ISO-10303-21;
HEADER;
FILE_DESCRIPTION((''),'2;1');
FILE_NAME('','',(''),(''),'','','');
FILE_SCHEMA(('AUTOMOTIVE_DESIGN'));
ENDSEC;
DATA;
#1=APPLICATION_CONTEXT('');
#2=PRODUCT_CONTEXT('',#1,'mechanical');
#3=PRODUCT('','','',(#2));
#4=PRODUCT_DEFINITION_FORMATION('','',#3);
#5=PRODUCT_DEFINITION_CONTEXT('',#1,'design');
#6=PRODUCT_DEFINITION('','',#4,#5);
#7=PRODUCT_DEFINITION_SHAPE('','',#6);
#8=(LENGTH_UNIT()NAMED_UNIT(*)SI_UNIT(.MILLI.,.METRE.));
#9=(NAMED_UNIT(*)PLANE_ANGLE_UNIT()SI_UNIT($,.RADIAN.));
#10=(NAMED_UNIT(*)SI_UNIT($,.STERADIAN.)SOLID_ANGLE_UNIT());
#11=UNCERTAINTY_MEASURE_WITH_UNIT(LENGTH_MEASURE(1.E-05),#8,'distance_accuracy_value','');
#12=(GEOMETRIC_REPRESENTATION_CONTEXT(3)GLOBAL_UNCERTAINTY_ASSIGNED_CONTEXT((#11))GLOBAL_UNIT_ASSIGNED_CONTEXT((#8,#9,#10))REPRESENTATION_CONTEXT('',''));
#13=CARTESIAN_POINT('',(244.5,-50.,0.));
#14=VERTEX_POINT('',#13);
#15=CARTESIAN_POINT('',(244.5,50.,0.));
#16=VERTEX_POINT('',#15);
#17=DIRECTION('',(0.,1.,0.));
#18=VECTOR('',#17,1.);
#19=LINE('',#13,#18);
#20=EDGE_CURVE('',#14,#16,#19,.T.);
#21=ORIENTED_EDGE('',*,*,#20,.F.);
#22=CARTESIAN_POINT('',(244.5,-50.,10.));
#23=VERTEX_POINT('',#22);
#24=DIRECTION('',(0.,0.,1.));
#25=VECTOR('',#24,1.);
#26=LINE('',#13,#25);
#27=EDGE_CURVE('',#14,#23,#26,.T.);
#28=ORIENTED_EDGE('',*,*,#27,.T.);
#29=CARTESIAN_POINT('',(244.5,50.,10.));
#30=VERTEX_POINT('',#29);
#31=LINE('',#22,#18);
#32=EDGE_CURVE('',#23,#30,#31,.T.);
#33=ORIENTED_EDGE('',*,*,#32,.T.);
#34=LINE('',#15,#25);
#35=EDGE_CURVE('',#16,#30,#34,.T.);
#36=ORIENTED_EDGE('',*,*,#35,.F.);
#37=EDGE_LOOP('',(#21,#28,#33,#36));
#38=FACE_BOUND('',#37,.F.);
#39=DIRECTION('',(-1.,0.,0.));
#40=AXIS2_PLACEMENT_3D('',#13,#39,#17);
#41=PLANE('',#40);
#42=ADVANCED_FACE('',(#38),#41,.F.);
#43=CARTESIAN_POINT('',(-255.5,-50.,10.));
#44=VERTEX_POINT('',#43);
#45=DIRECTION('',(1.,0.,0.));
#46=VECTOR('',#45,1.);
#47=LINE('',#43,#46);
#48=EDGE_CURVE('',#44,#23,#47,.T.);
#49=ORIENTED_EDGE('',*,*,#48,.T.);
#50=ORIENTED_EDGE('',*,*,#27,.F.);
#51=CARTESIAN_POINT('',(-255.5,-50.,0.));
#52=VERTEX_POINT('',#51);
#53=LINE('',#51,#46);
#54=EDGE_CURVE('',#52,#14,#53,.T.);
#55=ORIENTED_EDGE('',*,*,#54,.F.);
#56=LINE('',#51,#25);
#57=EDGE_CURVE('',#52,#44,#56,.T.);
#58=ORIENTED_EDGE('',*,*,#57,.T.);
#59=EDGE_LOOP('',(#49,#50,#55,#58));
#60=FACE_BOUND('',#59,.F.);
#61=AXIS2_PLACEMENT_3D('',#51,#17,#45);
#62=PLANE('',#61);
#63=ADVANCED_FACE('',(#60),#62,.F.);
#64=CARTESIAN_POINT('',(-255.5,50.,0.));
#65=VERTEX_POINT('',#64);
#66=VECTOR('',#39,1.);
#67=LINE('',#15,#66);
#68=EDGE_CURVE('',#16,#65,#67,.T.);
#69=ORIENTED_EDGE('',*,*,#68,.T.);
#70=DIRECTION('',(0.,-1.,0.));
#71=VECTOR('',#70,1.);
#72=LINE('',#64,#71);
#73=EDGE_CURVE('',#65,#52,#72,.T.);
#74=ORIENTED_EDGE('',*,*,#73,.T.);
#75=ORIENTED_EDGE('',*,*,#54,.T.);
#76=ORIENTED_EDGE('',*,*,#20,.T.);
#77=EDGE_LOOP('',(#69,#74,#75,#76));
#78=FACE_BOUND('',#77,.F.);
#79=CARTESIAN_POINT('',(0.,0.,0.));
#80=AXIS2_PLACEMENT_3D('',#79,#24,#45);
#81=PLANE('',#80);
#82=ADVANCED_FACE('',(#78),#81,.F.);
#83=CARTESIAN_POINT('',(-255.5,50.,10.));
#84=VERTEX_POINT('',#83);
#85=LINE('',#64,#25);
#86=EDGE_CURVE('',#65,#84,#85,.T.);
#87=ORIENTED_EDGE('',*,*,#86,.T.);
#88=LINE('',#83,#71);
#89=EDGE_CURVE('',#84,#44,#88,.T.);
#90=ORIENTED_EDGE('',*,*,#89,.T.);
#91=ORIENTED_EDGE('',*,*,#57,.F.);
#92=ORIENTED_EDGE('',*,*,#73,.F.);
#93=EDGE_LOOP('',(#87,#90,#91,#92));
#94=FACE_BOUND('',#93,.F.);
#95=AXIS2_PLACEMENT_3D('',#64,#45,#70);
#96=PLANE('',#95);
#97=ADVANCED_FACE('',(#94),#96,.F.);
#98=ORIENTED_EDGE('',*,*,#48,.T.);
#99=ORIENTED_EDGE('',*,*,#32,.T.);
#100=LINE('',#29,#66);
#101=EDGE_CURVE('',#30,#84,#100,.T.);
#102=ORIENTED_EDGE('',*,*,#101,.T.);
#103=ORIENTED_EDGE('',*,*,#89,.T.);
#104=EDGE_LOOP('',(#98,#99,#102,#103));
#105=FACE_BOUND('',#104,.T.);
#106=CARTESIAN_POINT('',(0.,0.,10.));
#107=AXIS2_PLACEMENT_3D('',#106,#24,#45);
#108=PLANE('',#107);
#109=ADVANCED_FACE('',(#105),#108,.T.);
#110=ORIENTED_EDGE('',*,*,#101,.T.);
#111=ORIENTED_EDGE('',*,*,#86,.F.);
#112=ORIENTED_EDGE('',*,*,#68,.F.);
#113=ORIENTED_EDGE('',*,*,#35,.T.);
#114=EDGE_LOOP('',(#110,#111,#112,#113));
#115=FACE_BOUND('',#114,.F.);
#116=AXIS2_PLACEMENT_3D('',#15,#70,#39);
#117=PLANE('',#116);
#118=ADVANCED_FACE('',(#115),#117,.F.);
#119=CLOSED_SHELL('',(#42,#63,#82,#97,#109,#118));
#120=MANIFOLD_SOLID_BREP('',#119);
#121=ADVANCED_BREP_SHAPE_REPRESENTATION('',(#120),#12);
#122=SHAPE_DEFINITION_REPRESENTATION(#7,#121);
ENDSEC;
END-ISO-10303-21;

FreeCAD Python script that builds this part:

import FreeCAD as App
import Part
import Sketcher

V = App.Vector


def add_polygon(sketch, points):
    """Adds a closed chain of lines whose ends are joined by coincident constraints."""
    first, n = sketch.GeometryCount, len(points)
    for a, b in zip(points, points[1:] + points[:1]):
        sketch.addGeometry(Part.LineSegment(App.Vector(*a, 0), App.Vector(*b, 0)), False)
    for i in range(n):
        sketch.addConstraint(Sketcher.Constraint("Coincident", first + i, 2, first + (i + 1) % n, 1))

doc = App.newDocument("Part")
params = doc.addObject("Spreadsheet::Sheet", "Params")
for row, (alias, value) in enumerate([
    ("sketch1_width", "500 mm"),
    ("sketch1_height", "100 mm"),
    ("pad1_length", "10 mm"),
], start=1):
    params.set(f"A{row}", alias)
    params.set(f"B{row}", "=" + value)
    params.setAlias(f"B{row}", alias)

body = doc.addObject("PartDesign::Body", "Body")

# Sketch on XY plane
sketch1 = body.newObject("Sketcher::SketchObject", "Sketch")
sketch1.AttachmentSupport = (doc.getObject("XY_Plane"), [""])
sketch1.MapMode = "FlatFace"
add_polygon(sketch1, [(244.5, -50), (244.5, 50), (-255.5, 50), (-255.5, -50)])  # lines 0-3
sketch1.addConstraint(Sketcher.Constraint("Vertical", 0))
sketch1.addConstraint(Sketcher.Constraint("Horizontal", 1))
sketch1.addConstraint(Sketcher.Constraint("Vertical", 2))
sketch1.addConstraint(Sketcher.Constraint("Horizontal", 3))
sketch1.addConstraint(Sketcher.Constraint("DistanceX", 1, 2, 1, 1, 500.0))
sketch1.addConstraint(Sketcher.Constraint("DistanceY", 0, 1, 0, 2, 100.0))
sketch1.addConstraint(Sketcher.Constraint("DistanceY", -1, 1, 0, 2, 50.0))
sketch1.addConstraint(Sketcher.Constraint("DistanceX", -1, 1, 0, 2, 244.5))
sketch1.setExpression("Constraints[8]", "Params.sketch1_width")
sketch1.setExpression("Constraints[9]", "Params.sketch1_height")
pad1 = body.newObject("PartDesign::Pad", "Pad")
pad1.Profile = sketch1
pad1.setExpression("Length", "Params.pad1_length")

doc.recompute()
